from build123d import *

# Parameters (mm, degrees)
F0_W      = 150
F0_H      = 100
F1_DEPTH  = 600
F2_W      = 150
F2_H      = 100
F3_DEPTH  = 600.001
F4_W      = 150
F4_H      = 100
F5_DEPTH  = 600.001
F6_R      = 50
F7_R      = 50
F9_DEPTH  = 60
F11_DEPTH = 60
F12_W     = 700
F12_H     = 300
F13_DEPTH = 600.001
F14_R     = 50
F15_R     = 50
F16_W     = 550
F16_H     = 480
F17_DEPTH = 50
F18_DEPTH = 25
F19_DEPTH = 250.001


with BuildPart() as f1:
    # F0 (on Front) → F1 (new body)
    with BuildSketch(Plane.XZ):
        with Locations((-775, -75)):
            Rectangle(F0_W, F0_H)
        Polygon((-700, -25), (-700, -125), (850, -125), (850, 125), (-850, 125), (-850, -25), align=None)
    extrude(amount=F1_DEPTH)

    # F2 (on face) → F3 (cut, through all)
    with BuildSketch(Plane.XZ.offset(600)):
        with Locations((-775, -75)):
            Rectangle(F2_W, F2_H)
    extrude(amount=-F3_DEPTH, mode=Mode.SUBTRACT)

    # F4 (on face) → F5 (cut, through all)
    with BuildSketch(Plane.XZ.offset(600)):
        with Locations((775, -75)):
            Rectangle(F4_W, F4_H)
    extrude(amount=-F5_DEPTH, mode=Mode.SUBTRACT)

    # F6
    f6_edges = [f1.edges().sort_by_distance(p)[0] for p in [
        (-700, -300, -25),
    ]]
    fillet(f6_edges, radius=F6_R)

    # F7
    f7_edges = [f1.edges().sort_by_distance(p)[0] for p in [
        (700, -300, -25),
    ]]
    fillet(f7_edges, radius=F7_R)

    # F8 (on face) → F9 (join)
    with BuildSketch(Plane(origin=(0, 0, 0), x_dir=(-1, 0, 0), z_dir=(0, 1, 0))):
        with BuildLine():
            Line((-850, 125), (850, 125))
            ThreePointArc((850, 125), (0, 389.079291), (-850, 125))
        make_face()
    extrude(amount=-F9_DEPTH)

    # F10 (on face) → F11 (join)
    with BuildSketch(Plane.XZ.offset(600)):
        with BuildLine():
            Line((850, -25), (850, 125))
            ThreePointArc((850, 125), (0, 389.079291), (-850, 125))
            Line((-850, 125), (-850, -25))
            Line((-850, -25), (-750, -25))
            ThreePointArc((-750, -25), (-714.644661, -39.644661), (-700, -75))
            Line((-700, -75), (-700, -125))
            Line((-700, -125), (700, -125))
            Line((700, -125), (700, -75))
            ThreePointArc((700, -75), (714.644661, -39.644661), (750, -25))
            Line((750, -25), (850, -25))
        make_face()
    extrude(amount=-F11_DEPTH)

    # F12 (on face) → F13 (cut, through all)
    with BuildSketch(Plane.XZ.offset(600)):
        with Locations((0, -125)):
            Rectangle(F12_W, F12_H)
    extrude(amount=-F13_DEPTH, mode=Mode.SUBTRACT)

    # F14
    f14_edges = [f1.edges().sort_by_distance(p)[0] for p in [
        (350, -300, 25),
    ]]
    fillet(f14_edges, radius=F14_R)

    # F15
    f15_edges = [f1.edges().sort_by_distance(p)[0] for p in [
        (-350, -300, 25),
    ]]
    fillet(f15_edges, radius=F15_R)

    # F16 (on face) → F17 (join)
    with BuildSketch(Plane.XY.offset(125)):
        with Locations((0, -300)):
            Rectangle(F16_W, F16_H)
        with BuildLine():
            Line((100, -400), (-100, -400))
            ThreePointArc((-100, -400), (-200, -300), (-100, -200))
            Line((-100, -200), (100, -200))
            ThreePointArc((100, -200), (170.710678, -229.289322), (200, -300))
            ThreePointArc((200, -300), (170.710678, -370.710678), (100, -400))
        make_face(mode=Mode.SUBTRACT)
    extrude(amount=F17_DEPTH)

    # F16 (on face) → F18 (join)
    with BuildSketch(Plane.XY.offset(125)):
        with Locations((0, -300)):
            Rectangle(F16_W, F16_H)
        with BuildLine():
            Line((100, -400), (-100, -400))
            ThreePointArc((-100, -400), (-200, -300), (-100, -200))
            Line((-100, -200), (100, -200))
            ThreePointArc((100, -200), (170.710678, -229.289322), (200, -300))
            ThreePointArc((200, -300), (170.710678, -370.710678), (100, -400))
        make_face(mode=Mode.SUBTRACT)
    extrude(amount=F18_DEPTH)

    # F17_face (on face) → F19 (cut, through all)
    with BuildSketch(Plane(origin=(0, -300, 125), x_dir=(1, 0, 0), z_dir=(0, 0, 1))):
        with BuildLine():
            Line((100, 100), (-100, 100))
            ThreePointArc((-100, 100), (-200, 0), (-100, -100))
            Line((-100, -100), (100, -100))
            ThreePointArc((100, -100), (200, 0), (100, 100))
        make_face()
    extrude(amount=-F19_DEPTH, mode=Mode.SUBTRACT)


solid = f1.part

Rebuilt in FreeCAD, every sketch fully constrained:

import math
import FreeCAD as App
import Part
import Sketcher
Q = App.Units.Quantity


def edges_at(feature, points):
    """Names of the edges that pass closest to the given points."""
    edges = feature.Shape.Edges
    near = lambda p: min(range(len(edges)), key=lambda i: edges[i].distToShape(Part.Vertex(*p))[0])
    return sorted({f"Edge{near(p) + 1}" for p in points})

doc = App.newDocument("Part")
body = doc.addObject("PartDesign::Body", "Body")

# Sketch on XZ plane
sketch1 = doc.addObject("Sketcher::SketchObject", "Sketch")
body.addObject(sketch1)
sketch1.AttachmentSupport = (doc.XZ_Plane, [""])
sketch1.MapMode = "FlatFace"
sketch1.addGeometry(Part.LineSegment(App.Vector(-850, -125, 0), App.Vector(850, -125, 0)), False)
sketch1.addGeometry(Part.LineSegment(App.Vector(850, -125, 0), App.Vector(850, 125, 0)), False)
sketch1.addGeometry(Part.LineSegment(App.Vector(850, 125, 0), App.Vector(-850, 125, 0)), False)
sketch1.addGeometry(Part.LineSegment(App.Vector(-850, 125, 0), App.Vector(-850, -125, 0)), False)
sketch1.addConstraint(Sketcher.Constraint("Coincident", 0, 2, 1, 1))
sketch1.addConstraint(Sketcher.Constraint("Coincident", 1, 2, 2, 1))
sketch1.addConstraint(Sketcher.Constraint("Coincident", 2, 2, 3, 1))
sketch1.addConstraint(Sketcher.Constraint("Coincident", 3, 2, 0, 1))
sketch1.addConstraint(Sketcher.Constraint("Horizontal", 0))
sketch1.addConstraint(Sketcher.Constraint("Vertical", 1))
sketch1.addConstraint(Sketcher.Constraint("Horizontal", 2))
sketch1.addConstraint(Sketcher.Constraint("Vertical", 3))
sketch1.addConstraint(Sketcher.Constraint("Symmetric", 0, 2, 2, 2, -1, 1))
sketch1.addConstraint(Sketcher.Constraint("DistanceX", 0, 1, 0, 2, Q("1700 mm")))
sketch1.addConstraint(Sketcher.Constraint("DistanceY", 1, 1, 1, 2, Q("250 mm")))
pad1 = doc.addObject("PartDesign::Pad", "Pad")
body.addObject(pad1)
pad1.Profile = sketch1
pad1.Length = 600

# Sketch on XZ plane
sketch2 = doc.addObject("Sketcher::SketchObject", "Sketch001")
body.addObject(sketch2)
sketch2.AttachmentSupport = (doc.XZ_Plane, [""])
sketch2.MapMode = "FlatFace"
sketch2.AttachmentOffset = App.Placement(App.Vector(0, 0, 600), App.Rotation())
sketch2.addGeometry(Part.LineSegment(App.Vector(-850, -25, 0), App.Vector(-850, -125, 0)), False)
sketch2.addGeometry(Part.LineSegment(App.Vector(-850, -125, 0), App.Vector(-700, -125, 0)), False)
sketch2.addGeometry(Part.LineSegment(App.Vector(-700, -125, 0), App.Vector(-700, -25, 0)), False)
sketch2.addGeometry(Part.LineSegment(App.Vector(-700, -25, 0), App.Vector(-850, -25, 0)), False)
sketch2.addConstraint(Sketcher.Constraint("Coincident", 0, 2, 1, 1))
sketch2.addConstraint(Sketcher.Constraint("Coincident", 1, 2, 2, 1))
sketch2.addConstraint(Sketcher.Constraint("Coincident", 2, 2, 3, 1))
sketch2.addConstraint(Sketcher.Constraint("Coincident", 3, 2, 0, 1))
sketch2.addConstraint(Sketcher.Constraint("Vertical", 0))
sketch2.addConstraint(Sketcher.Constraint("Horizontal", 1))
sketch2.addConstraint(Sketcher.Constraint("Vertical", 2))
sketch2.addConstraint(Sketcher.Constraint("Horizontal", 3))
sketch2.addConstraint(Sketcher.Constraint("DistanceX", 1, 1, 1, 2, Q("150 mm")))
sketch2.addConstraint(Sketcher.Constraint("DistanceY", 0, 2, 0, 1, Q("100 mm")))
sketch2.addConstraint(Sketcher.Constraint("DistanceX", 0, 2, -1, 1, Q("850 mm")))
sketch2.addConstraint(Sketcher.Constraint("DistanceY", 0, 2, -1, 1, Q("125 mm")))
pocket1 = doc.addObject("PartDesign::Pocket", "Pocket")
body.addObject(pocket1)
pocket1.Profile = sketch2
pocket1.Type = "ThroughAll"

# Sketch on XZ plane
sketch3 = doc.addObject("Sketcher::SketchObject", "Sketch002")
body.addObject(sketch3)
sketch3.AttachmentSupport = (doc.XZ_Plane, [""])
sketch3.MapMode = "FlatFace"
sketch3.AttachmentOffset = App.Placement(App.Vector(0, 0, 600), App.Rotation())
sketch3.addGeometry(Part.LineSegment(App.Vector(700, -25, 0), App.Vector(700, -125, 0)), False)
sketch3.addGeometry(Part.LineSegment(App.Vector(700, -125, 0), App.Vector(850, -125, 0)), False)
sketch3.addGeometry(Part.LineSegment(App.Vector(850, -125, 0), App.Vector(850, -25, 0)), False)
sketch3.addGeometry(Part.LineSegment(App.Vector(850, -25, 0), App.Vector(700, -25, 0)), False)
sketch3.addConstraint(Sketcher.Constraint("Coincident", 0, 2, 1, 1))
sketch3.addConstraint(Sketcher.Constraint("Coincident", 1, 2, 2, 1))
sketch3.addConstraint(Sketcher.Constraint("Coincident", 2, 2, 3, 1))
sketch3.addConstraint(Sketcher.Constraint("Coincident", 3, 2, 0, 1))
sketch3.addConstraint(Sketcher.Constraint("Vertical", 0))
sketch3.addConstraint(Sketcher.Constraint("Horizontal", 1))
sketch3.addConstraint(Sketcher.Constraint("Vertical", 2))
sketch3.addConstraint(Sketcher.Constraint("Horizontal", 3))
sketch3.addConstraint(Sketcher.Constraint("DistanceX", 1, 1, 1, 2, Q("150 mm")))
sketch3.addConstraint(Sketcher.Constraint("DistanceY", 0, 2, 0, 1, Q("100 mm")))
sketch3.addConstraint(Sketcher.Constraint("DistanceX", -1, 1, 0, 2, Q("700 mm")))
sketch3.addConstraint(Sketcher.Constraint("DistanceY", 0, 2, -1, 1, Q("125 mm")))
pocket2 = doc.addObject("PartDesign::Pocket", "Pocket001")
body.addObject(pocket2)
pocket2.Profile = sketch3
pocket2.Type = "ThroughAll"
doc.recompute()

fillet = doc.addObject("PartDesign::Fillet", "Fillet")
body.addObject(fillet)
fillet.Base = (pocket2, edges_at(pocket2, [(-700, -300, -25)]))
fillet.Radius = 50
doc.recompute()

fillet2 = doc.addObject("PartDesign::Fillet", "Fillet001")
body.addObject(fillet2)
fillet2.Base = (fillet, edges_at(fillet, [(700, -300, -25)]))
fillet2.Radius = 50

# Sketch on XZ plane
sketch4 = doc.addObject("Sketcher::SketchObject", "Sketch003")
body.addObject(sketch4)
sketch4.AttachmentSupport = (doc.XZ_Plane, [""])
sketch4.MapMode = "FlatFace"
sketch4.addGeometry(Part.LineSegment(App.Vector(850, 125, 0), App.Vector(-850, 125, 0)), False)
sketch4.addGeometry(Part.ArcOfCircle(Part.Circle(App.Vector(0, -1110.920707, 0), App.Vector(0, 0, 1), 1499.999998), math.radians(55.481892), math.radians(124.518108)), False)
sketch4.addConstraint(Sketcher.Constraint("Coincident", 0, 1, 1, 1))
sketch4.addConstraint(Sketcher.Constraint("Coincident", 1, 2, 0, 2))
sketch4.addConstraint(Sketcher.Constraint("Horizontal", 0))
sketch4.addConstraint(Sketcher.Constraint("PointOnObject", 1, 3, -2))
sketch4.addConstraint(Sketcher.Constraint("DistanceX", 0, 2, 0, 1, Q("1700 mm")))
sketch4.addConstraint(Sketcher.Constraint("DistanceY", -1, 1, 0, 1, Q("125 mm")))
sketch4.addConstraint(Sketcher.Constraint("Radius", 1, Q("1499.999998 mm")))
pad2 = doc.addObject("PartDesign::Pad", "Pad001")
body.addObject(pad2)
pad2.Profile = sketch4
pad2.Length = 60

# Sketch on XZ plane
sketch5 = doc.addObject("Sketcher::SketchObject", "Sketch004")
body.addObject(sketch5)
sketch5.AttachmentSupport = (doc.XZ_Plane, [""])
sketch5.MapMode = "FlatFace"
sketch5.AttachmentOffset = App.Placement(App.Vector(0, 0, 600), App.Rotation())
sketch5.addGeometry(Part.LineSegment(App.Vector(850, -25, 0), App.Vector(850, 125, 0)), False)
sketch5.addGeometry(Part.ArcOfCircle(Part.Circle(App.Vector(0, -1110.920707, 0), App.Vector(0, 0, 1), 1499.999998), math.radians(55.481892), math.radians(124.518108)), False)
sketch5.addGeometry(Part.LineSegment(App.Vector(-850, 125, 0), App.Vector(-850, -25, 0)), False)
sketch5.addGeometry(Part.LineSegment(App.Vector(-850, -25, 0), App.Vector(-750, -25, 0)), False)
sketch5.addGeometry(Part.ArcOfCircle(Part.Circle(App.Vector(-750, -75, 0), App.Vector(0, 0, 1), 50), math.radians(0), math.radians(90)), False)
sketch5.addGeometry(Part.LineSegment(App.Vector(-700, -75, 0), App.Vector(-700, -125, 0)), False)
sketch5.addGeometry(Part.LineSegment(App.Vector(-700, -125, 0), App.Vector(700, -125, 0)), False)
sketch5.addGeometry(Part.LineSegment(App.Vector(700, -125, 0), App.Vector(700, -75, 0)), False)
sketch5.addGeometry(Part.ArcOfCircle(Part.Circle(App.Vector(750, -75, 0), App.Vector(0, 0, 1), 50), math.radians(90), math.radians(180)), False)
sketch5.addGeometry(Part.LineSegment(App.Vector(750, -25, 0), App.Vector(850, -25, 0)), False)
sketch5.addConstraint(Sketcher.Constraint("Coincident", 0, 2, 1, 1))
sketch5.addConstraint(Sketcher.Constraint("Coincident", 1, 2, 2, 1))
sketch5.addConstraint(Sketcher.Constraint("Coincident", 2, 2, 3, 1))
sketch5.addConstraint(Sketcher.Constraint("Tangent", 3, 2, 4, 2))
sketch5.addConstraint(Sketcher.Constraint("Tangent", 4, 1, 5, 1))
sketch5.addConstraint(Sketcher.Constraint("Coincident", 5, 2, 6, 1))
sketch5.addConstraint(Sketcher.Constraint("Coincident", 6, 2, 7, 1))
sketch5.addConstraint(Sketcher.Constraint("Tangent", 7, 2, 8, 2))
sketch5.addConstraint(Sketcher.Constraint("Tangent", 8, 1, 9, 1))
sketch5.addConstraint(Sketcher.Constraint("Coincident", 9, 2, 0, 1))
sketch5.addConstraint(Sketcher.Constraint("Vertical", 0))
sketch5.addConstraint(Sketcher.Constraint("Vertical", 2))
sketch5.addConstraint(Sketcher.Constraint("Horizontal", 3))
sketch5.addConstraint(Sketcher.Constraint("Vertical", 5))
sketch5.addConstraint(Sketcher.Constraint("Horizontal", 6))
sketch5.addConstraint(Sketcher.Constraint("Vertical", 7))
sketch5.addConstraint(Sketcher.Constraint("Horizontal", 9))
sketch5.addConstraint(Sketcher.Constraint("Equal", 4, 8))
sketch5.addConstraint(Sketcher.Constraint("Symmetric", 4, 3, 8, 3, -2))
sketch5.addConstraint(Sketcher.Constraint("PointOnObject", 1, 3, -2))
sketch5.addConstraint(Sketcher.Constraint("Equal", 3, 9))
sketch5.addConstraint(Sketcher.Constraint("Radius", 4, Q("50 mm")))
sketch5.addConstraint(Sketcher.Constraint("DistanceX", 3, 1, 3, 2, Q("100 mm")))
sketch5.addConstraint(Sketcher.Constraint("DistanceX", 6, 1, 6, 2, Q("1400 mm")))
sketch5.addConstraint(Sketcher.Constraint("DistanceY", 0, 1, 0, 2, Q("150 mm")))
sketch5.addConstraint(Sketcher.Constraint("DistanceY", 5, 2, 5, 1, Q("50 mm")))
sketch5.addConstraint(Sketcher.Constraint("DistanceY", 4, 3, -1, 1, Q("75 mm")))
sketch5.addConstraint(Sketcher.Constraint("Radius", 1, Q("1499.999998 mm")))
pad3 = doc.addObject("PartDesign::Pad", "Pad002")
body.addObject(pad3)
pad3.Profile = sketch5
pad3.Length = 60
pad3.Reversed = True

# Sketch on XZ plane
sketch6 = doc.addObject("Sketcher::SketchObject", "Sketch005")
body.addObject(sketch6)
sketch6.AttachmentSupport = (doc.XZ_Plane, [""])
sketch6.MapMode = "FlatFace"
sketch6.AttachmentOffset = App.Placement(App.Vector(0, 0, 600), App.Rotation())
sketch6.addGeometry(Part.LineSegment(App.Vector(-350, 25, 0), App.Vector(-350, -275, 0)), False)
sketch6.addGeometry(Part.LineSegment(App.Vector(-350, -275, 0), App.Vector(350, -275, 0)), False)
sketch6.addGeometry(Part.LineSegment(App.Vector(350, -275, 0), App.Vector(350, 25, 0)), False)
sketch6.addGeometry(Part.LineSegment(App.Vector(350, 25, 0), App.Vector(-350, 25, 0)), False)
sketch6.addConstraint(Sketcher.Constraint("Coincident", 0, 2, 1, 1))
sketch6.addConstraint(Sketcher.Constraint("Coincident", 1, 2, 2, 1))
sketch6.addConstraint(Sketcher.Constraint("Coincident", 2, 2, 3, 1))
sketch6.addConstraint(Sketcher.Constraint("Coincident", 3, 2, 0, 1))
sketch6.addConstraint(Sketcher.Constraint("Vertical", 0))
sketch6.addConstraint(Sketcher.Constraint("Horizontal", 1))
sketch6.addConstraint(Sketcher.Constraint("Vertical", 2))
sketch6.addConstraint(Sketcher.Constraint("Horizontal", 3))
sketch6.addConstraint(Sketcher.Constraint("DistanceX", 1, 1, 1, 2, Q("700 mm")))
sketch6.addConstraint(Sketcher.Constraint("DistanceY", 0, 2, 0, 1, Q("300 mm")))
sketch6.addConstraint(Sketcher.Constraint("DistanceX", 0, 2, -1, 1, Q("350 mm")))
sketch6.addConstraint(Sketcher.Constraint("DistanceY", 0, 2, -1, 1, Q("275 mm")))
pocket3 = doc.addObject("PartDesign::Pocket", "Pocket002")
body.addObject(pocket3)
pocket3.Profile = sketch6
pocket3.Type = "ThroughAll"
doc.recompute()

fillet3 = doc.addObject("PartDesign::Fillet", "Fillet002")
body.addObject(fillet3)
fillet3.Base = (pocket3, edges_at(pocket3, [(350, -300, 25)]))
fillet3.Radius = 50
doc.recompute()

fillet4 = doc.addObject("PartDesign::Fillet", "Fillet003")
body.addObject(fillet4)
fillet4.Base = (fillet3, edges_at(fillet3, [(-350, -300, 25)]))
fillet4.Radius = 50

# Sketch on XY plane
sketch7 = doc.addObject("Sketcher::SketchObject", "Sketch006")
body.addObject(sketch7)
sketch7.AttachmentSupport = (doc.XY_Plane, [""])
sketch7.MapMode = "FlatFace"
sketch7.AttachmentOffset = App.Placement(App.Vector(0, 0, 125), App.Rotation())
sketch7.addGeometry(Part.LineSegment(App.Vector(-275, -60, 0), App.Vector(-275, -540, 0)), False)
sketch7.addGeometry(Part.LineSegment(App.Vector(-275, -540, 0), App.Vector(275, -540, 0)), False)
sketch7.addGeometry(Part.LineSegment(App.Vector(275, -540, 0), App.Vector(275, -60, 0)), False)
sketch7.addGeometry(Part.LineSegment(App.Vector(275, -60, 0), App.Vector(-275, -60, 0)), False)
sketch7.addGeometry(Part.ArcOfCircle(Part.Circle(App.Vector(100, -300, 0), App.Vector(0, 0, 1), 100), math.radians(-90), math.radians(0)), False)
sketch7.addGeometry(Part.LineSegment(App.Vector(100, -400, 0), App.Vector(-100, -400, 0)), False)
sketch7.addGeometry(Part.ArcOfCircle(Part.Circle(App.Vector(-100, -300, 0), App.Vector(0, 0, 1), 100), math.radians(90), math.radians(270)), False)
sketch7.addGeometry(Part.LineSegment(App.Vector(-100, -200, 0), App.Vector(100, -200, 0)), False)
sketch7.addGeometry(Part.ArcOfCircle(Part.Circle(App.Vector(100, -300, 0), App.Vector(0, 0, 1), 100), math.radians(0), math.radians(90)), False)
sketch7.addConstraint(Sketcher.Constraint("Coincident", 0, 2, 1, 1))
sketch7.addConstraint(Sketcher.Constraint("Coincident", 1, 2, 2, 1))
sketch7.addConstraint(Sketcher.Constraint("Coincident", 2, 2, 3, 1))
sketch7.addConstraint(Sketcher.Constraint("Coincident", 3, 2, 0, 1))
sketch7.addConstraint(Sketcher.Constraint("Tangent", 4, 1, 5, 1))
sketch7.addConstraint(Sketcher.Constraint("Tangent", 5, 2, 6, 2))
sketch7.addConstraint(Sketcher.Constraint("Tangent", 6, 1, 7, 1))
sketch7.addConstraint(Sketcher.Constraint("Tangent", 7, 2, 8, 2))
sketch7.addConstraint(Sketcher.Constraint("Tangent", 8, 1, 4, 2))
sketch7.addConstraint(Sketcher.Constraint("Vertical", 0))
sketch7.addConstraint(Sketcher.Constraint("Horizontal", 1))
sketch7.addConstraint(Sketcher.Constraint("Vertical", 2))
sketch7.addConstraint(Sketcher.Constraint("Horizontal", 3))
sketch7.addConstraint(Sketcher.Constraint("Horizontal", 5))
sketch7.addConstraint(Sketcher.Constraint("Horizontal", 7))
sketch7.addConstraint(Sketcher.Constraint("Equal", 4, 6))
sketch7.addConstraint(Sketcher.Constraint("Horizontal", 6, 3, 8, 1))
sketch7.addConstraint(Sketcher.Constraint("Radius", 4, Q("100 mm")))
sketch7.addConstraint(Sketcher.Constraint("DistanceX", 1, 1, 1, 2, Q("550 mm")))
sketch7.addConstraint(Sketcher.Constraint("DistanceX", 5, 2, 5, 1, Q("200 mm")))
sketch7.addConstraint(Sketcher.Constraint("DistanceY", 0, 2, 0, 1, Q("480 mm")))
sketch7.addConstraint(Sketcher.Constraint("DistanceX", -1, 1, 4, 3, Q("100 mm")))
sketch7.addConstraint(Sketcher.Constraint("DistanceY", 4, 3, -1, 1, Q("300 mm")))
sketch7.addConstraint(Sketcher.Constraint("DistanceX", 0, 2, -1, 1, Q("275 mm")))
sketch7.addConstraint(Sketcher.Constraint("DistanceY", 0, 2, -1, 1, Q("540 mm")))
pad4 = doc.addObject("PartDesign::Pad", "Pad003")
body.addObject(pad4)
pad4.Profile = sketch7
pad4.Length = 50

# Sketch on XY plane
sketch8 = doc.addObject("Sketcher::SketchObject", "Sketch007")
body.addObject(sketch8)
sketch8.AttachmentSupport = (doc.XY_Plane, [""])
sketch8.MapMode = "FlatFace"
sketch8.AttachmentOffset = App.Placement(App.Vector(0, 0, 125), App.Rotation())
sketch8.addGeometry(Part.LineSegment(App.Vector(-275, -60, 0), App.Vector(-275, -540, 0)), False)
sketch8.addGeometry(Part.LineSegment(App.Vector(-275, -540, 0), App.Vector(275, -540, 0)), False)
sketch8.addGeometry(Part.LineSegment(App.Vector(275, -540, 0), App.Vector(275, -60, 0)), False)
sketch8.addGeometry(Part.LineSegment(App.Vector(275, -60, 0), App.Vector(-275, -60, 0)), False)
sketch8.addGeometry(Part.ArcOfCircle(Part.Circle(App.Vector(100, -300, 0), App.Vector(0, 0, 1), 100), math.radians(-90), math.radians(0)), False)
sketch8.addGeometry(Part.LineSegment(App.Vector(100, -400, 0), App.Vector(-100, -400, 0)), False)
sketch8.addGeometry(Part.ArcOfCircle(Part.Circle(App.Vector(-100, -300, 0), App.Vector(0, 0, 1), 100), math.radians(90), math.radians(270)), False)
sketch8.addGeometry(Part.LineSegment(App.Vector(-100, -200, 0), App.Vector(100, -200, 0)), False)
sketch8.addGeometry(Part.ArcOfCircle(Part.Circle(App.Vector(100, -300, 0), App.Vector(0, 0, 1), 100), math.radians(0), math.radians(90)), False)
sketch8.addConstraint(Sketcher.Constraint("Coincident", 0, 2, 1, 1))
sketch8.addConstraint(Sketcher.Constraint("Coincident", 1, 2, 2, 1))
sketch8.addConstraint(Sketcher.Constraint("Coincident", 2, 2, 3, 1))
sketch8.addConstraint(Sketcher.Constraint("Coincident", 3, 2, 0, 1))
sketch8.addConstraint(Sketcher.Constraint("Tangent", 4, 1, 5, 1))
sketch8.addConstraint(Sketcher.Constraint("Tangent", 5, 2, 6, 2))
sketch8.addConstraint(Sketcher.Constraint("Tangent", 6, 1, 7, 1))
sketch8.addConstraint(Sketcher.Constraint("Tangent", 7, 2, 8, 2))
sketch8.addConstraint(Sketcher.Constraint("Tangent", 8, 1, 4, 2))
sketch8.addConstraint(Sketcher.Constraint("Vertical", 0))
sketch8.addConstraint(Sketcher.Constraint("Horizontal", 1))
sketch8.addConstraint(Sketcher.Constraint("Vertical", 2))
sketch8.addConstraint(Sketcher.Constraint("Horizontal", 3))
sketch8.addConstraint(Sketcher.Constraint("Horizontal", 5))
sketch8.addConstraint(Sketcher.Constraint("Horizontal", 7))
sketch8.addConstraint(Sketcher.Constraint("Equal", 4, 6))
sketch8.addConstraint(Sketcher.Constraint("Horizontal", 6, 3, 8, 1))
sketch8.addConstraint(Sketcher.Constraint("Radius", 4, Q("100 mm")))
sketch8.addConstraint(Sketcher.Constraint("DistanceX", 1, 1, 1, 2, Q("550 mm")))
sketch8.addConstraint(Sketcher.Constraint("DistanceX", 5, 2, 5, 1, Q("200 mm")))
sketch8.addConstraint(Sketcher.Constraint("DistanceY", 0, 2, 0, 1, Q("480 mm")))
sketch8.addConstraint(Sketcher.Constraint("DistanceX", -1, 1, 4, 3, Q("100 mm")))
sketch8.addConstraint(Sketcher.Constraint("DistanceY", 4, 3, -1, 1, Q("300 mm")))
sketch8.addConstraint(Sketcher.Constraint("DistanceX", 0, 2, -1, 1, Q("275 mm")))
sketch8.addConstraint(Sketcher.Constraint("DistanceY", 0, 2, -1, 1, Q("540 mm")))
pad5 = doc.addObject("PartDesign::Pad", "Pad004")
body.addObject(pad5)
pad5.Profile = sketch8
pad5.Length = 25

# Sketch on XY plane
sketch9 = doc.addObject("Sketcher::SketchObject", "Sketch008")
body.addObject(sketch9)
sketch9.AttachmentSupport = (doc.XY_Plane, [""])
sketch9.MapMode = "FlatFace"
sketch9.AttachmentOffset = App.Placement(App.Vector(0, 0, 125), App.Rotation())
sketch9.addGeometry(Part.LineSegment(App.Vector(100, -200, 0), App.Vector(-100, -200, 0)), False)
sketch9.addGeometry(Part.ArcOfCircle(Part.Circle(App.Vector(-100, -300, 0), App.Vector(0, 0, 1), 100), math.radians(90), math.radians(270)), False)
sketch9.addGeometry(Part.LineSegment(App.Vector(-100, -400, 0), App.Vector(100, -400, 0)), False)
sketch9.addGeometry(Part.ArcOfCircle(Part.Circle(App.Vector(100, -300, 0), App.Vector(0, 0, 1), 100), math.radians(-90), math.radians(90)), False)
sketch9.addConstraint(Sketcher.Constraint("Tangent", 0, 2, 1, 1))
sketch9.addConstraint(Sketcher.Constraint("Tangent", 1, 2, 2, 1))
sketch9.addConstraint(Sketcher.Constraint("Tangent", 2, 2, 3, 1))
sketch9.addConstraint(Sketcher.Constraint("Tangent", 3, 2, 0, 1))
sketch9.addConstraint(Sketcher.Constraint("Horizontal", 0))
sketch9.addConstraint(Sketcher.Constraint("Horizontal", 2))
sketch9.addConstraint(Sketcher.Constraint("Radius", 1, Q("100 mm")))
sketch9.addConstraint(Sketcher.Constraint("DistanceX", 0, 2, 0, 1, Q("200 mm")))
sketch9.addConstraint(Sketcher.Constraint("DistanceX", 1, 3, -1, 1, Q("100 mm")))
sketch9.addConstraint(Sketcher.Constraint("DistanceY", 1, 3, -1, 1, Q("300 mm")))
pocket4 = doc.addObject("PartDesign::Pocket", "Pocket003")
body.addObject(pocket4)
pocket4.Profile = sketch9
pocket4.Type = "ThroughAll"

doc.recompute()
